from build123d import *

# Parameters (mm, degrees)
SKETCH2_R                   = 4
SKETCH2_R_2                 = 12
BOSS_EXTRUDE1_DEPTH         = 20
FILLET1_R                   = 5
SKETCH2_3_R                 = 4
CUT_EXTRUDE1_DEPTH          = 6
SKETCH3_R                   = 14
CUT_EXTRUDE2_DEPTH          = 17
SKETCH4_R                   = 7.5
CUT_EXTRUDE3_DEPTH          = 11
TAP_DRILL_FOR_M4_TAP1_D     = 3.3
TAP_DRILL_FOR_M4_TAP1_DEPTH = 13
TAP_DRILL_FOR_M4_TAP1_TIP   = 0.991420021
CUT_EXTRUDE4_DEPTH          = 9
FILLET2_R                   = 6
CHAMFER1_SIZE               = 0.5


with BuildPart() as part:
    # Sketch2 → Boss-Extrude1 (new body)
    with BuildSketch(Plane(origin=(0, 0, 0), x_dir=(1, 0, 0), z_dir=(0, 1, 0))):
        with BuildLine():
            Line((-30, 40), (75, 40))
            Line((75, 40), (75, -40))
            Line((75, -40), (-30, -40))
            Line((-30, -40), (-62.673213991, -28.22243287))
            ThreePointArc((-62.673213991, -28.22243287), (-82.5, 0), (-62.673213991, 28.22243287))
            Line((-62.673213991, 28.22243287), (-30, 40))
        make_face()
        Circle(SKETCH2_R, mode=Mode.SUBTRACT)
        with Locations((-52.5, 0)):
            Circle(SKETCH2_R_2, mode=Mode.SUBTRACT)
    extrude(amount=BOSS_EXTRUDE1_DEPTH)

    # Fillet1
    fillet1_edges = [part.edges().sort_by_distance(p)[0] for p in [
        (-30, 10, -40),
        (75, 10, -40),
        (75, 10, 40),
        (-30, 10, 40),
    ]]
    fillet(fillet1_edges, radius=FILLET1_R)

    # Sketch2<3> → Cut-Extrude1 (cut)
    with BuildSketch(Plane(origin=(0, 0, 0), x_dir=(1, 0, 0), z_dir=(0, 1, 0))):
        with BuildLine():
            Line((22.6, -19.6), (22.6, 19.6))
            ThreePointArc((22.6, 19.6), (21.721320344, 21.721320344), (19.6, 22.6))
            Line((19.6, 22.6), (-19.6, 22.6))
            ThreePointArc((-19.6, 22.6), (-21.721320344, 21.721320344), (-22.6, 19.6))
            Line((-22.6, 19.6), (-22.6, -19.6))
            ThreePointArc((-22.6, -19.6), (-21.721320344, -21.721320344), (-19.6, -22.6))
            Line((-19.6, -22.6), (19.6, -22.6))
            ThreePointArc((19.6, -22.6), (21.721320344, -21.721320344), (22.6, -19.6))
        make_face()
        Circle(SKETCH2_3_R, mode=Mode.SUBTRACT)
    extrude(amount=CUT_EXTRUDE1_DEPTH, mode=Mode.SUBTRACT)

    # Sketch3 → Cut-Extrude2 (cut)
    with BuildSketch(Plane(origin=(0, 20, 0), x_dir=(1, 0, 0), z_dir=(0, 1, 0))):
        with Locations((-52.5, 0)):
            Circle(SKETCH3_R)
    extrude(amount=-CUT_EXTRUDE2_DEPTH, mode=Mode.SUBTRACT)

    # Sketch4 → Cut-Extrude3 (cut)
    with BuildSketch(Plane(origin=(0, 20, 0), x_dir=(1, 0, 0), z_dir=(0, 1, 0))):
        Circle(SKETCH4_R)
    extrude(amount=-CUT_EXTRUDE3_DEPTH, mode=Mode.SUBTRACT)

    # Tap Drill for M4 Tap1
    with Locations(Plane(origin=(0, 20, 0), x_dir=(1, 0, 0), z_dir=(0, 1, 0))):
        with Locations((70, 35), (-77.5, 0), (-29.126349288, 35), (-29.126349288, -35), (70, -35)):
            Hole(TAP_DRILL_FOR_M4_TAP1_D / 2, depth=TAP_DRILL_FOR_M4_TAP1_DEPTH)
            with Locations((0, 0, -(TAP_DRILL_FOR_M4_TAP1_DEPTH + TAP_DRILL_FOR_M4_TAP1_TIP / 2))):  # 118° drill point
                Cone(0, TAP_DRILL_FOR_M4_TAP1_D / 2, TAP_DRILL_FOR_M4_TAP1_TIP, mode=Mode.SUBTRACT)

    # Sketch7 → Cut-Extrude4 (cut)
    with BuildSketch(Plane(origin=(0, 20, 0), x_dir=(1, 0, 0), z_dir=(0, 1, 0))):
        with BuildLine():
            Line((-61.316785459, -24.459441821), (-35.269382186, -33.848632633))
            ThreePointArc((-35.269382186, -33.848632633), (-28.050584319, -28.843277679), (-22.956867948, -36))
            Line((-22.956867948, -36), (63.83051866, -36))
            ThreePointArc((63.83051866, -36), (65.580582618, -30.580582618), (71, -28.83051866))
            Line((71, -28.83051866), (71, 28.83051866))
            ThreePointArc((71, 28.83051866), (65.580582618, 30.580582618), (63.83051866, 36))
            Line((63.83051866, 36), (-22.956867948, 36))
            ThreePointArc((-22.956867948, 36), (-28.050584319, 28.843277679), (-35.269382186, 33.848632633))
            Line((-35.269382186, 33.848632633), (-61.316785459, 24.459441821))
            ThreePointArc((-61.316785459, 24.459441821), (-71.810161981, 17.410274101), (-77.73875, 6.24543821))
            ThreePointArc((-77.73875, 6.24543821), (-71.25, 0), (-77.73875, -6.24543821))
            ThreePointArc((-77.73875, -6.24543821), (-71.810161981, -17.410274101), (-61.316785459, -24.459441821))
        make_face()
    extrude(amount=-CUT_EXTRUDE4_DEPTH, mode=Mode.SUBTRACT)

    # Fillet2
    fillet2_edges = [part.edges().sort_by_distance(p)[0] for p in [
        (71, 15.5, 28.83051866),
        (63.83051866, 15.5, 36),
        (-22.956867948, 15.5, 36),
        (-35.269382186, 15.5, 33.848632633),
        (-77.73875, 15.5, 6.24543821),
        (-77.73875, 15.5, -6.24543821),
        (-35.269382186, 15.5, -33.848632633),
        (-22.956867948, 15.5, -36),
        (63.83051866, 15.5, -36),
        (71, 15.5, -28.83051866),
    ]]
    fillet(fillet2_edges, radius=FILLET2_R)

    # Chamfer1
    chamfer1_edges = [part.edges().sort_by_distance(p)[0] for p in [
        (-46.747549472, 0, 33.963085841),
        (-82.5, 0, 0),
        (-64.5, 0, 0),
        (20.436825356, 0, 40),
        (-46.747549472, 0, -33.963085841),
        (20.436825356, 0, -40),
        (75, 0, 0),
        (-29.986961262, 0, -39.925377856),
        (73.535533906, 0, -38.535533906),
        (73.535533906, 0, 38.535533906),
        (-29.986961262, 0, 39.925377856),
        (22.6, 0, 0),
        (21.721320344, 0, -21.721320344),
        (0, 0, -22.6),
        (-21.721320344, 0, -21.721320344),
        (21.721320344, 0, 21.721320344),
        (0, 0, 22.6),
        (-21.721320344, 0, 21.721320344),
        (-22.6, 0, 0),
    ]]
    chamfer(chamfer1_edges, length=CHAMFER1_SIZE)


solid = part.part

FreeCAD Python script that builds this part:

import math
import FreeCAD as App
import Part
import Sketcher

V = App.Vector
Q = App.Units.Quantity


def edges_at(feature, points):
    """Names of the edges that pass closest to the given points."""
    edges = feature.Shape.Edges
    near = lambda p: min(range(len(edges)), key=lambda i: edges[i].distToShape(Part.Vertex(*p))[0])
    return sorted({f"Edge{near(p) + 1}" for p in points})

doc = App.newDocument("Part")
body = doc.addObject("PartDesign::Body", "Body")

# Sketch on XZ plane
sketch1 = doc.addObject("Sketcher::SketchObject", "Sketch")
body.addObject(sketch1)
sketch1.AttachmentSupport = (doc.XZ_Plane, [""])
sketch1.MapMode = "FlatFace"
sketch1.addGeometry(Part.LineSegment(V(75, -40, 0), V(-30, -40, 0)), False)
sketch1.addGeometry(Part.LineSegment(V(-30, -40, 0), V(-62.673214, -28.222433, 0)), False)
sketch1.addGeometry(Part.ArcOfCircle(Part.Circle(V(-52.5, 0, 0), V(0, 0, 1), 30), math.radians(109.822485), math.radians(250.177515)), False)
sketch1.addGeometry(Part.LineSegment(V(-62.673214, 28.222433, 0), V(-30, 40, 0)), False)
sketch1.addGeometry(Part.LineSegment(V(-30, 40, 0), V(75, 40, 0)), False)
sketch1.addGeometry(Part.LineSegment(V(75, 40, 0), V(75, -40, 0)), False)
sketch1.addGeometry(Part.Circle(V(0, 0, 0), V(0, 0, 1), 4), False)
sketch1.addGeometry(Part.Circle(V(-52.5, 0, 0), V(0, 0, 1), 12), False)
sketch1.addConstraint(Sketcher.Constraint("Coincident", 0, 2, 1, 1))
sketch1.addConstraint(Sketcher.Constraint("Tangent", 1, 2, 2, 2))
sketch1.addConstraint(Sketcher.Constraint("Tangent", 2, 1, 3, 1))
sketch1.addConstraint(Sketcher.Constraint("Coincident", 3, 2, 4, 1))
sketch1.addConstraint(Sketcher.Constraint("Coincident", 4, 2, 5, 1))
sketch1.addConstraint(Sketcher.Constraint("Coincident", 5, 2, 0, 1))
sketch1.addConstraint(Sketcher.Constraint("Horizontal", 0))
sketch1.addConstraint(Sketcher.Constraint("Horizontal", 4))
sketch1.addConstraint(Sketcher.Constraint("Vertical", 5))
sketch1.addConstraint(Sketcher.Constraint("Coincident", 6, 3, -1, 1))
sketch1.addConstraint(Sketcher.Constraint("Coincident", 7, 3, 2, 3))
sketch1.addConstraint(Sketcher.Constraint("Symmetric", 1, 2, 2, 1, -1))
sketch1.addConstraint(Sketcher.Constraint("Vertical", 0, 2, 3, 2))
sketch1.addConstraint(Sketcher.Constraint("Diameter", 6, Q("8 mm")))
sketch1.addConstraint(Sketcher.Constraint("Diameter", 7, Q("24 mm")))
sketch1.addConstraint(Sketcher.Constraint("Radius", 2, Q("30 mm")))
sketch1.addConstraint(Sketcher.Constraint("DistanceX", 0, 2, 0, 1, Q("105 mm")))
sketch1.addConstraint(Sketcher.Constraint("DistanceY", 5, 2, 5, 1, Q("80 mm")))
sketch1.addConstraint(Sketcher.Constraint("DistanceX", 0, 2, -1, 1, Q("30 mm")))
sketch1.addConstraint(Sketcher.Constraint("DistanceX", 2, 3, -1, 1, Q("52.5 mm")))
pad1 = doc.addObject("PartDesign::Pad", "Pad")
body.addObject(pad1)
pad1.Profile = sketch1
pad1.Length = 20
pad1.Reversed = True
doc.recompute()

fillet = doc.addObject("PartDesign::Fillet", "Fillet")
body.addObject(fillet)
fillet.Base = (pad1, edges_at(pad1, [
    (-30, 10, -40),
    (75, 10, -40),
    (75, 10, 40),
    (-30, 10, 40),
]))
fillet.Radius = 5

# Sketch on XZ plane
sketch2 = doc.addObject("Sketcher::SketchObject", "Sketch001")
body.addObject(sketch2)
sketch2.AttachmentSupport = (doc.XZ_Plane, [""])
sketch2.MapMode = "FlatFace"
sketch2.addGeometry(Part.LineSegment(V(22.6, 19.6, 0), V(22.6, -19.6, 0)), False)
sketch2.addGeometry(Part.ArcOfCircle(Part.Circle(V(19.6, -19.6, 0), V(0, 0, 1), 3), math.radians(-90), math.radians(0)), False)
sketch2.addGeometry(Part.LineSegment(V(19.6, -22.6, 0), V(-19.6, -22.6, 0)), False)
sketch2.addGeometry(Part.ArcOfCircle(Part.Circle(V(-19.6, -19.6, 0), V(0, 0, 1), 3), math.radians(180), math.radians(270)), False)
sketch2.addGeometry(Part.LineSegment(V(-22.6, -19.6, 0), V(-22.6, 19.6, 0)), False)
sketch2.addGeometry(Part.ArcOfCircle(Part.Circle(V(-19.6, 19.6, 0), V(0, 0, 1), 3), math.radians(90), math.radians(180)), False)
sketch2.addGeometry(Part.LineSegment(V(-19.6, 22.6, 0), V(19.6, 22.6, 0)), False)
sketch2.addGeometry(Part.ArcOfCircle(Part.Circle(V(19.6, 19.6, 0), V(0, 0, 1), 3), math.radians(0), math.radians(90)), False)
sketch2.addGeometry(Part.Circle(V(0, 0, 0), V(0, 0, 1), 4), False)
sketch2.addConstraint(Sketcher.Constraint("Tangent", 0, 2, 1, 2))
sketch2.addConstraint(Sketcher.Constraint("Tangent", 1, 1, 2, 1))
sketch2.addConstraint(Sketcher.Constraint("Tangent", 2, 2, 3, 2))
sketch2.addConstraint(Sketcher.Constraint("Tangent", 3, 1, 4, 1))
sketch2.addConstraint(Sketcher.Constraint("Tangent", 4, 2, 5, 2))
sketch2.addConstraint(Sketcher.Constraint("Tangent", 5, 1, 6, 1))
sketch2.addConstraint(Sketcher.Constraint("Tangent", 6, 2, 7, 2))
sketch2.addConstraint(Sketcher.Constraint("Tangent", 7, 1, 0, 1))
sketch2.addConstraint(Sketcher.Constraint("Vertical", 0))
sketch2.addConstraint(Sketcher.Constraint("Horizontal", 2))
sketch2.addConstraint(Sketcher.Constraint("Vertical", 4))
sketch2.addConstraint(Sketcher.Constraint("Horizontal", 6))
sketch2.addConstraint(Sketcher.Constraint("Coincident", 8, 3, -1, 1))
sketch2.addConstraint(Sketcher.Constraint("Equal", 1, 3))
sketch2.addConstraint(Sketcher.Constraint("Equal", 3, 5))
sketch2.addConstraint(Sketcher.Constraint("Equal", 5, 7))
sketch2.addConstraint(Sketcher.Constraint("Symmetric", 1, 3, 5, 3, -1, 1))
sketch2.addConstraint(Sketcher.Constraint("Equal", 6, 0))
sketch2.addConstraint(Sketcher.Constraint("Diameter", 8, Q("8 mm")))
sketch2.addConstraint(Sketcher.Constraint("Radius", 1, Q("3 mm")))
sketch2.addConstraint(Sketcher.Constraint("DistanceX", 2, 2, 2, 1, Q("39.2 mm")))
pocket1 = doc.addObject("PartDesign::Pocket", "Pocket")
body.addObject(pocket1)
pocket1.Profile = sketch2
pocket1.Length = 6

# Sketch on XZ plane
sketch3 = doc.addObject("Sketcher::SketchObject", "Sketch002")
body.addObject(sketch3)
sketch3.AttachmentSupport = (doc.XZ_Plane, [""])
sketch3.MapMode = "FlatFace"
sketch3.AttachmentOffset = App.Placement(V(0, 0, -20), App.Rotation())
sketch3.addGeometry(Part.Circle(V(-52.5, 0, 0), V(0, 0, 1), 14), False)
sketch3.addConstraint(Sketcher.Constraint("PointOnObject", 0, 3, -1))
sketch3.addConstraint(Sketcher.Constraint("Diameter", 0, Q("28 mm")))
sketch3.addConstraint(Sketcher.Constraint("DistanceX", 0, 3, -1, 1, Q("52.5 mm")))
pocket2 = doc.addObject("PartDesign::Pocket", "Pocket001")
body.addObject(pocket2)
pocket2.Profile = sketch3
pocket2.Length = 17
pocket2.Reversed = True

# Sketch on XZ plane
sketch4 = doc.addObject("Sketcher::SketchObject", "Sketch003")
body.addObject(sketch4)
sketch4.AttachmentSupport = (doc.XZ_Plane, [""])
sketch4.MapMode = "FlatFace"
sketch4.AttachmentOffset = App.Placement(V(0, 0, -20), App.Rotation())
sketch4.addGeometry(Part.Circle(V(0, 0, 0), V(0, 0, 1), 7.5), False)
sketch4.addConstraint(Sketcher.Constraint("Coincident", 0, 3, -1, 1))
sketch4.addConstraint(Sketcher.Constraint("Diameter", 0, Q("15 mm")))
pocket3 = doc.addObject("PartDesign::Pocket", "Pocket002")
body.addObject(pocket3)
pocket3.Profile = sketch4
pocket3.Length = 11
pocket3.Reversed = True

# Sketch on XZ plane
sketch5 = doc.addObject("Sketcher::SketchObject", "Sketch004")
body.addObject(sketch5)
sketch5.AttachmentSupport = (doc.XZ_Plane, [""])
sketch5.MapMode = "FlatFace"
sketch5.AttachmentOffset = App.Placement(V(0, 0, -20), App.Rotation())
sketch5.addGeometry(Part.Circle(V(70, -35, 0), V(0, 0, 1), 1.65), False)
sketch5.addGeometry(Part.Circle(V(-77.5, 0, 0), V(0, 0, 1), 1.65), False)
sketch5.addGeometry(Part.Circle(V(-29.126349, -35, 0), V(0, 0, 1), 1.65), False)
sketch5.addGeometry(Part.Circle(V(-29.126349, 35, 0), V(0, 0, 1), 1.65), False)
sketch5.addGeometry(Part.Circle(V(70, 35, 0), V(0, 0, 1), 1.65), False)
sketch5.addConstraint(Sketcher.Constraint("Equal", 0, 1))
sketch5.addConstraint(Sketcher.Constraint("Equal", 1, 2))
sketch5.addConstraint(Sketcher.Constraint("Equal", 2, 3))
sketch5.addConstraint(Sketcher.Constraint("Equal", 3, 4))
sketch5.addConstraint(Sketcher.Constraint("Symmetric", 2, 3, 3, 3, -1))
sketch5.addConstraint(Sketcher.Constraint("Symmetric", 0, 3, 4, 3, -1))
sketch5.addConstraint(Sketcher.Constraint("PointOnObject", 1, 3, -1))
sketch5.addConstraint(Sketcher.Constraint("Horizontal", 0, 3, 2, 3))
sketch5.addConstraint(Sketcher.Constraint("Diameter", 0, Q("3.3 mm")))
sketch5.addConstraint(Sketcher.Constraint("DistanceX", -1, 1, 0, 3, Q("70 mm")))
sketch5.addConstraint(Sketcher.Constraint("DistanceY", 0, 3, -1, 1, Q("35 mm")))
sketch5.addConstraint(Sketcher.Constraint("DistanceX", 1, 3, -1, 1, Q("77.5 mm")))
sketch5.addConstraint(Sketcher.Constraint("DistanceX", 2, 3, -1, 1, Q("29.126349 mm")))
doc.recompute()
hole = doc.addObject("PartDesign::Hole", "Hole")
body.addObject(hole)
hole.Profile = sketch5
hole.ThreadType = "None"
hole.Diameter = 3.3
hole.DepthType = "Dimension"
hole.Depth = 13
hole.DrillPoint = "Angled"
hole.DrillPointAngle = 118
hole.Reversed = True

# Sketch on XZ plane
sketch6 = doc.addObject("Sketcher::SketchObject", "Sketch005")
body.addObject(sketch6)
sketch6.AttachmentSupport = (doc.XZ_Plane, [""])
sketch6.MapMode = "FlatFace"
sketch6.AttachmentOffset = App.Placement(V(0, 0, -20), App.Rotation())
sketch6.addGeometry(Part.LineSegment(V(-61.316785, 24.459442, 0), V(-35.269382, 33.848633, 0)), False)
sketch6.addGeometry(Part.ArcOfCircle(Part.Circle(V(-29.126349, 35, 0), V(0, 0, 1), 6.25), math.radians(-169.384411), math.radians(9.206896)), False)
sketch6.addGeometry(Part.LineSegment(V(-22.956868, 36, 0), V(63.830519, 36, 0)), False)
sketch6.addGeometry(Part.ArcOfCircle(Part.Circle(V(70, 35, 0), V(0, 0, 1), 6.25), math.radians(170.793104), math.radians(279.206896)), False)
sketch6.addGeometry(Part.LineSegment(V(71, 28.830519, 0), V(71, -28.830519, 0)), False)
sketch6.addGeometry(Part.ArcOfCircle(Part.Circle(V(70, -35, 0), V(0, 0, 1), 6.25), math.radians(80.793104), math.radians(189.206896)), False)
sketch6.addGeometry(Part.LineSegment(V(63.830519, -36, 0), V(-22.956868, -36, 0)), False)
sketch6.addGeometry(Part.ArcOfCircle(Part.Circle(V(-29.126349, -35, 0), V(0, 0, 1), 6.25), math.radians(-9.206896), math.radians(169.384411)), False)
sketch6.addGeometry(Part.LineSegment(V(-35.269382, -33.848633, 0), V(-61.316785, -24.459442, 0)), False)
sketch6.addGeometry(Part.ArcOfCircle(Part.Circle(V(-52.5, 0, 0), V(0, 0, 1), 26), math.radians(-166.101114), math.radians(-109.822485)), False)
sketch6.addGeometry(Part.ArcOfCircle(Part.Circle(V(-77.5, 0, 0), V(0, 0, 1), 6.25), math.radians(-92.189231), math.radians(92.189231)), False)
sketch6.addGeometry(Part.ArcOfCircle(Part.Circle(V(-52.5, 0, 0), V(0, 0, 1), 26), math.radians(109.822485), math.radians(166.101114)), False)
sketch6.addConstraint(Sketcher.Constraint("Coincident", 0, 2, 1, 1))
sketch6.addConstraint(Sketcher.Constraint("Coincident", 1, 2, 2, 1))
sketch6.addConstraint(Sketcher.Constraint("Coincident", 2, 2, 3, 1))
sketch6.addConstraint(Sketcher.Constraint("Coincident", 3, 2, 4, 1))
sketch6.addConstraint(Sketcher.Constraint("Coincident", 4, 2, 5, 1))
sketch6.addConstraint(Sketcher.Constraint("Coincident", 5, 2, 6, 1))
sketch6.addConstraint(Sketcher.Constraint("Coincident", 6, 2, 7, 1))
sketch6.addConstraint(Sketcher.Constraint("Coincident", 7, 2, 8, 1))
sketch6.addConstraint(Sketcher.Constraint("Tangent", 8, 2, 9, 2))
sketch6.addConstraint(Sketcher.Constraint("Coincident", 9, 1, 10, 1))
sketch6.addConstraint(Sketcher.Constraint("Coincident", 10, 2, 11, 2))
sketch6.addConstraint(Sketcher.Constraint("Tangent", 11, 1, 0, 1))
sketch6.addConstraint(Sketcher.Constraint("Horizontal", 2))
sketch6.addConstraint(Sketcher.Constraint("Vertical", 4))
sketch6.addConstraint(Sketcher.Constraint("Horizontal", 6))
sketch6.addConstraint(Sketcher.Constraint("Coincident", 11, 3, 9, 3))
sketch6.addConstraint(Sketcher.Constraint("Equal", 1, 3))
sketch6.addConstraint(Sketcher.Constraint("Equal", 3, 5))
sketch6.addConstraint(Sketcher.Constraint("Equal", 5, 7))
sketch6.addConstraint(Sketcher.Constraint("Equal", 7, 10))
sketch6.addConstraint(Sketcher.Constraint("Equal", 9, 11))
sketch6.addConstraint(Sketcher.Constraint("Symmetric", 3, 3, 5, 3, -1))
sketch6.addConstraint(Sketcher.Constraint("Symmetric", 1, 3, 7, 3, -1))
sketch6.addConstraint(Sketcher.Constraint("Symmetric", 9, 1, 10, 2, -1))
sketch6.addConstraint(Sketcher.Constraint("Horizontal", 1, 3, 3, 3))
sketch6.addConstraint(Sketcher.Constraint("Vertical", 2, 2, 5, 2))
sketch6.addConstraint(Sketcher.Constraint("Vertical", 0, 2, 7, 2))
sketch6.addConstraint(Sketcher.Constraint("Radius", 9, Q("26 mm")))
sketch6.addConstraint(Sketcher.Constraint("Radius", 1, Q("6.25 mm")))
sketch6.addConstraint(Sketcher.Constraint("DistanceY", -1, 1, 1, 3, Q("35 mm")))
sketch6.addConstraint(Sketcher.Constraint("DistanceX", -1, 1, 3, 3, Q("70 mm")))
sketch6.addConstraint(Sketcher.Constraint("DistanceY", -1, 1, 1, 2, Q("36 mm")))
sketch6.addConstraint(Sketcher.Constraint("DistanceX", -1, 1, 3, 2, Q("71 mm")))
sketch6.addConstraint(Sketcher.Constraint("DistanceX", 10, 3, 9, 3, Q("25 mm")))
sketch6.addConstraint(Sketcher.Constraint("DistanceX", 9, 3, -1, 1, Q("52.5 mm")))
sketch6.addConstraint(Sketcher.Constraint("DistanceX", 0, 2, 2, 2, Q("99.099901 mm")))
sketch6.addConstraint(Sketcher.Constraint("DistanceX", 2, 1, 2, 2, Q("86.787387 mm")))
pocket4 = doc.addObject("PartDesign::Pocket", "Pocket003")
body.addObject(pocket4)
pocket4.Profile = sketch6
pocket4.Length = 9
pocket4.Reversed = True
doc.recompute()

fillet2 = doc.addObject("PartDesign::Fillet", "Fillet001")
body.addObject(fillet2)
fillet2.Base = (pocket4, edges_at(pocket4, [
    (71, 15.5, 28.831),
    (63.831, 15.5, 36),
    (-22.957, 15.5, 36),
    (-35.269, 15.5, 33.849),
    (-77.739, 15.5, 6.245),
    (-77.739, 15.5, -6.245),
    (-35.269, 15.5, -33.849),
    (-22.957, 15.5, -36),
    (63.831, 15.5, -36),
    (71, 15.5, -28.831),
]))
fillet2.Radius = 6
doc.recompute()

chamfer = doc.addObject("PartDesign::Chamfer", "Chamfer")
body.addObject(chamfer)
chamfer.Base = (fillet2, edges_at(fillet2, [
    (-46.748, 0, 33.963),
    (-82.5, 0, 0),
    (-64.5, 0, 0),
    (20.437, 0, 40),
    (-46.748, 0, -33.963),
    (20.437, 0, -40),
    (75, 0, 0),
    (-29.987, 0, -39.925),
    (73.536, 0, -38.536),
    (73.536, 0, 38.536),
    (-29.987, 0, 39.925),
    (22.6, 0, 0),
    (21.721, 0, -21.721),
    (0, 0, -22.6),
    (-21.721, 0, -21.721),
    (21.721, 0, 21.721),
    (0, 0, 22.6),
    (-21.721, 0, 21.721),
    (-22.6, 0, 0),
]))
chamfer.Size = 0.5

doc.recompute()
